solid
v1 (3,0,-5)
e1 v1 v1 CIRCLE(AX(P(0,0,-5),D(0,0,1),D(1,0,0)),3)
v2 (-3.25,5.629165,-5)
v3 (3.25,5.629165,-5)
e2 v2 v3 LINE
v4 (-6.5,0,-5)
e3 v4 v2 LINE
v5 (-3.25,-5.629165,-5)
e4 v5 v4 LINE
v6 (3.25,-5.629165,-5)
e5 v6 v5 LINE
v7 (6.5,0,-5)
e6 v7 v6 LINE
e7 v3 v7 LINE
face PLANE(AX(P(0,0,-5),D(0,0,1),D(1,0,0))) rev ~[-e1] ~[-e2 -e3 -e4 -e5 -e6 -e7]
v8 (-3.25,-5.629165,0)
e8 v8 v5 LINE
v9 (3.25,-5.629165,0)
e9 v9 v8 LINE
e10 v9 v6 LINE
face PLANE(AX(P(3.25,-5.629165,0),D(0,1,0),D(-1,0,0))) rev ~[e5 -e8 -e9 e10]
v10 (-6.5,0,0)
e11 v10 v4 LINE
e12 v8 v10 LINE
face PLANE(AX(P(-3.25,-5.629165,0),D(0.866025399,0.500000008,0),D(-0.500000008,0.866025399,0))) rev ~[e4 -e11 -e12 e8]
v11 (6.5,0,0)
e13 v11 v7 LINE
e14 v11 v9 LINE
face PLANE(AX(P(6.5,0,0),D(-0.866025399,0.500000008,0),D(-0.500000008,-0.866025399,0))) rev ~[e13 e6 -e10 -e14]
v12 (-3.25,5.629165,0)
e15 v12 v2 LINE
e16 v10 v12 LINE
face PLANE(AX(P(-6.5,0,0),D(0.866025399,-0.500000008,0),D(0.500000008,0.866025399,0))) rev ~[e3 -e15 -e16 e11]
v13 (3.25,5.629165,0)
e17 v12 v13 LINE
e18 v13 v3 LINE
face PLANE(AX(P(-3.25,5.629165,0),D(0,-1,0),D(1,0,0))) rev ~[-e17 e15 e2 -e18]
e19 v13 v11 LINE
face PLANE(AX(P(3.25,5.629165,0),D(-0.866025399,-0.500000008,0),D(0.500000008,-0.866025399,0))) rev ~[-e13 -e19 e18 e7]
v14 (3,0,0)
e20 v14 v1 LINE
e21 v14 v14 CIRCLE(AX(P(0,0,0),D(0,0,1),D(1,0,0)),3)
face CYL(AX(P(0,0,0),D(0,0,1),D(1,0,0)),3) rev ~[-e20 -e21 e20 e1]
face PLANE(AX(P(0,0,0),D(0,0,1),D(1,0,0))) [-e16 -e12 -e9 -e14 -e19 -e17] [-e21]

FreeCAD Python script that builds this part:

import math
import FreeCAD as App
import Part
import Sketcher

V = App.Vector
Q = App.Units.Quantity

doc = App.newDocument("Part")
body = doc.addObject("PartDesign::Body", "Body")

sketch1 = body.newObject("Sketcher::SketchObject", "Sketch")
sketch1.AttachmentSupport = (doc.getObject("XY_Plane"), [""])
sketch1.MapMode = "FlatFace"
sketch1.addGeometry(Part.Circle(V(0, 0, 0), V(0, 0, 1), 6.5), False)
sketch1.addConstraint([
    Sketcher.Constraint("Coincident", 0, 3, -1, 1),
    Sketcher.Constraint("Diameter", 0, 13.0),
])
pad1 = body.newObject("PartDesign::Pad", "Pad")
pad1.Profile = sketch1
pad1.Length = 5
pad1.Reversed = True

sketch2 = body.newObject("Sketcher::SketchObject", "Sketch001")
sketch2.AttachmentSupport = (doc.getObject("XY_Plane"), [""])
sketch2.MapMode = "FlatFace"
sketch2.addGeometry([
    Part.LineSegment(V(-3.25, 5.629165, 0), V(3.25, 5.629165, 0)),
    Part.ArcOfCircle(Part.Circle(V(0, 0.000001, 0), V(0, 0, 1), 6.499999), math.radians(59.999996), math.radians(120.000004)),
    Part.LineSegment(V(-6.5, 0, 0), V(-3.25, 5.629165, 0)),
    Part.ArcOfCircle(Part.Circle(V(0, 0, 0), V(0, 0, 1), 6.5), math.radians(120.000002), math.radians(179.999997)),
    Part.ArcOfCircle(Part.Circle(V(0, 0, 0), V(0, 0, 1), 6.5), math.radians(-179.999997), math.radians(-120.000002)),
    Part.LineSegment(V(-3.25, -5.629165, 0), V(-6.5, 0, 0)),
    Part.ArcOfCircle(Part.Circle(V(0, -0.000001, 0), V(0, 0, 1), 6.499999), math.radians(-120.000004), math.radians(-59.999996)),
    Part.LineSegment(V(3.25, -5.629165, 0), V(-3.25, -5.629165, 0)),
    Part.ArcOfCircle(Part.Circle(V(0, 0, 0), V(0, 0, 1), 6.5), math.radians(-59.999998), math.radians(-0.000003)),
    Part.LineSegment(V(6.5, 0, 0), V(3.25, -5.629165, 0)),
    Part.LineSegment(V(3.25, 5.629165, 0), V(6.5, 0, 0)),
    Part.ArcOfCircle(Part.Circle(V(0, 0, 0), V(0, 0, 1), 6.5), math.radians(0.000003), math.radians(59.999998)),
], False)
sketch2.addConstraint([
    Sketcher.Constraint("Coincident", 0, 1, 1, 2),
    Sketcher.Constraint("Coincident", 1, 1, 0, 2),
    Sketcher.Constraint("Coincident", 2, 1, 3, 2),
    Sketcher.Constraint("Coincident", 3, 1, 2, 2),
    Sketcher.Constraint("Coincident", 4, 1, 5, 2),
    Sketcher.Constraint("Coincident", 5, 1, 4, 2),
    Sketcher.Constraint("Coincident", 6, 1, 7, 2),
    Sketcher.Constraint("Coincident", 7, 1, 6, 2),
    Sketcher.Constraint("Coincident", 8, 1, 9, 2),
    Sketcher.Constraint("Coincident", 9, 1, 8, 2),
    Sketcher.Constraint("Coincident", 10, 1, 11, 2),
    Sketcher.Constraint("Coincident", 11, 1, 10, 2),
    Sketcher.Constraint("Horizontal", 0),
    Sketcher.Constraint("Horizontal", 7),
    Sketcher.Constraint("Coincident", 1, 3, -1, 1),
    Sketcher.Constraint("Coincident", 3, 3, -1, 1),
    Sketcher.Constraint("Coincident", 4, 3, -1, 1),
    Sketcher.Constraint("Coincident", 6, 3, -1, 1),
    Sketcher.Constraint("Coincident", 8, 3, -1, 1),
    Sketcher.Constraint("Coincident", 11, 3, -1, 1),
    Sketcher.Constraint("Coincident", 3, 1, 0, 1),
    Sketcher.Constraint("Coincident", 4, 1, 2, 1),
    Sketcher.Constraint("Coincident", 6, 1, 5, 1),
    Sketcher.Constraint("Coincident", 8, 1, 7, 1),
    Sketcher.Constraint("Coincident", 10, 1, 1, 1),
    Sketcher.Constraint("PointOnObject", 2, 1, -1),
    Sketcher.Constraint("PointOnObject", 9, 1, -1),
    Sketcher.Constraint("PointOnObject", 11, 1, -1),
    Sketcher.Constraint("Parallel", 2, 9),
    Sketcher.Constraint("Radius", 1, 6.499999),
    Sketcher.Constraint("Angle", 2, Q("59.999999 deg")),
])
pocket1 = body.newObject("PartDesign::Pocket", "Pocket")
pocket1.Profile = sketch2
pocket1.Type = "ThroughAll"

sketch3 = body.newObject("Sketcher::SketchObject", "Sketch002")
sketch3.AttachmentSupport = (doc.getObject("XY_Plane"), [""])
sketch3.MapMode = "FlatFace"
sketch3.addGeometry(Part.Circle(V(0, 0, 0), V(0, 0, 1), 3), False)
sketch3.addConstraint([
    Sketcher.Constraint("Coincident", 0, 3, -1, 1),
    Sketcher.Constraint("Diameter", 0, 6.0),
])
pocket2 = body.newObject("PartDesign::Pocket", "Pocket001")
pocket2.Profile = sketch3
pocket2.Type = "ThroughAll"

doc.recompute()
